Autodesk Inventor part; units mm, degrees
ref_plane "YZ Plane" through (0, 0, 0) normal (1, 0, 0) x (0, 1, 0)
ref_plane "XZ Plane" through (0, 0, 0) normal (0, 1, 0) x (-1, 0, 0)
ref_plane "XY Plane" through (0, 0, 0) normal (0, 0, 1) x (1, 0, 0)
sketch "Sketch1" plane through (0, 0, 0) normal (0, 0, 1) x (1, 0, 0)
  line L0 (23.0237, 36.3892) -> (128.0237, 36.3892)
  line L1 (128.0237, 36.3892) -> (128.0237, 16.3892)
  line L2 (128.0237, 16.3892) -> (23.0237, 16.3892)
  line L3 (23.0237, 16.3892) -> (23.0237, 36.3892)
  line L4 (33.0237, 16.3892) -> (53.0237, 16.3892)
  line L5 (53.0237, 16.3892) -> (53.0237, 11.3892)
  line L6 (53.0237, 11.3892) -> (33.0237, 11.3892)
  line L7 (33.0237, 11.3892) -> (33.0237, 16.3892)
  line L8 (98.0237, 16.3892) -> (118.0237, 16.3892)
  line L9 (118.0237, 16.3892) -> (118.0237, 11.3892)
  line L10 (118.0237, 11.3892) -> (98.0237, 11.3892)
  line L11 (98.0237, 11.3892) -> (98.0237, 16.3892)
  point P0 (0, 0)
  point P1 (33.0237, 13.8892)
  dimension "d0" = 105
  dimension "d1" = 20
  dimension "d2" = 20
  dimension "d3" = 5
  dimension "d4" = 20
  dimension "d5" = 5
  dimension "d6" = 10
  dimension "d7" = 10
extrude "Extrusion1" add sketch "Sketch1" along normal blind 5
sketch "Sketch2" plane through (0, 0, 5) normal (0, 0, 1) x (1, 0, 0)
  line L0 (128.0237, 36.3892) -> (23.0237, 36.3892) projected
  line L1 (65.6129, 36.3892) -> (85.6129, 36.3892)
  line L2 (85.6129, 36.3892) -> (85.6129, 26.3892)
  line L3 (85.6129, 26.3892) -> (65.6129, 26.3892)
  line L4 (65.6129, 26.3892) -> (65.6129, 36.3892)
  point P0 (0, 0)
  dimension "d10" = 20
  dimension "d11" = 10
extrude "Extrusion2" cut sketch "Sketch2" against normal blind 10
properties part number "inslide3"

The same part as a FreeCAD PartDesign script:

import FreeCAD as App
import Part
import Sketcher
from FreeCAD import Vector
Q = App.Units.Quantity


def add_polygon(sketch, points):
    """Adds a closed chain of lines whose ends are joined by coincident constraints."""
    first, n = sketch.GeometryCount, len(points)
    for a, b in zip(points, points[1:] + points[:1]):
        sketch.addGeometry(Part.LineSegment(App.Vector(*a, 0), App.Vector(*b, 0)), False)
    for i in range(n):
        sketch.addConstraint(Sketcher.Constraint("Coincident", first + i, 2, first + (i + 1) % n, 1))

doc = App.newDocument("Part")
body = doc.addObject("PartDesign::Body", "Body")

# Sketch on XY plane
sketch1 = body.newObject("Sketcher::SketchObject", "Sketch")
sketch1.AttachmentSupport = (doc.getObject("XY_Plane"), [""])
sketch1.MapMode = "FlatFace"
add_polygon(sketch1, [(128.0237, 36.3892), (23.0237, 36.3892), (23.0237, 16.3892), (33.0237, 16.3892), (33.0237, 11.3892), (53.0237, 11.3892), (53.0237, 16.3892), (98.0237, 16.3892), (98.0237, 11.3892), (118.0237, 11.3892), (118.0237, 16.3892), (128.0237, 16.3892)])  # lines 0-11
sketch1.addConstraint([
    Sketcher.Constraint("Horizontal", 0),
    Sketcher.Constraint("Vertical", 1),
    Sketcher.Constraint("Horizontal", 2),
    Sketcher.Constraint("Vertical", 3),
    Sketcher.Constraint("Horizontal", 4),
    Sketcher.Constraint("Vertical", 5),
    Sketcher.Constraint("Horizontal", 6),
    Sketcher.Constraint("Vertical", 7),
    Sketcher.Constraint("Horizontal", 8),
    Sketcher.Constraint("Vertical", 9),
    Sketcher.Constraint("Horizontal", 10),
    Sketcher.Constraint("Vertical", 11),
    Sketcher.Constraint("Horizontal", 2, 2, 5, 2),
    Sketcher.Constraint("Horizontal", 4, 2, 7, 2),
    Sketcher.Constraint("Horizontal", 6, 2, 9, 2),
    Sketcher.Constraint("Equal", 4, 8),
    Sketcher.Constraint("Equal", 2, 10),
    Sketcher.Constraint("Equal", 8, 1),
    Sketcher.Constraint("DistanceX", 0, 2, 0, 1, Q("105 mm")),
    Sketcher.Constraint("DistanceX", 2, 1, 2, 2, Q("10 mm")),
    Sketcher.Constraint("DistanceX", 4, 1, 4, 2, Q("20 mm")),
    Sketcher.Constraint("DistanceY", 3, 2, 3, 1, Q("5 mm")),
    Sketcher.Constraint("DistanceX", -1, 1, 0, 2, Q("23.0237 mm")),
    Sketcher.Constraint("DistanceY", -1, 1, 0, 2, Q("36.3892 mm")),
])
pad1 = body.newObject("PartDesign::Pad", "Pad")
pad1.Profile = sketch1
pad1.Length = 5

# Sketch on XY plane
sketch2 = body.newObject("Sketcher::SketchObject", "Sketch001")
sketch2.AttachmentSupport = (doc.getObject("XY_Plane"), [""])
sketch2.MapMode = "FlatFace"
sketch2.AttachmentOffset = App.Placement(Vector(0, 0, 5), App.Rotation())
add_polygon(sketch2, [(85.6129, 26.3892), (85.6129, 36.3892), (65.6129, 36.3892), (65.6129, 26.3892)])  # lines 0-3
sketch2.addConstraint([
    Sketcher.Constraint("Vertical", 0),
    Sketcher.Constraint("Horizontal", 1),
    Sketcher.Constraint("Vertical", 2),
    Sketcher.Constraint("Horizontal", 3),
    Sketcher.Constraint("DistanceX", 1, 2, 1, 1, Q("20 mm")),
    Sketcher.Constraint("DistanceY", 0, 1, 0, 2, Q("10 mm")),
    Sketcher.Constraint("DistanceX", -1, 1, 0, 2, Q("85.613 mm")),
    Sketcher.Constraint("DistanceY", -1, 1, 0, 2, Q("36.3892 mm")),
])
pocket1 = body.newObject("PartDesign::Pocket", "Pocket")
pocket1.Profile = sketch2
pocket1.Length = 10

doc.recompute()
